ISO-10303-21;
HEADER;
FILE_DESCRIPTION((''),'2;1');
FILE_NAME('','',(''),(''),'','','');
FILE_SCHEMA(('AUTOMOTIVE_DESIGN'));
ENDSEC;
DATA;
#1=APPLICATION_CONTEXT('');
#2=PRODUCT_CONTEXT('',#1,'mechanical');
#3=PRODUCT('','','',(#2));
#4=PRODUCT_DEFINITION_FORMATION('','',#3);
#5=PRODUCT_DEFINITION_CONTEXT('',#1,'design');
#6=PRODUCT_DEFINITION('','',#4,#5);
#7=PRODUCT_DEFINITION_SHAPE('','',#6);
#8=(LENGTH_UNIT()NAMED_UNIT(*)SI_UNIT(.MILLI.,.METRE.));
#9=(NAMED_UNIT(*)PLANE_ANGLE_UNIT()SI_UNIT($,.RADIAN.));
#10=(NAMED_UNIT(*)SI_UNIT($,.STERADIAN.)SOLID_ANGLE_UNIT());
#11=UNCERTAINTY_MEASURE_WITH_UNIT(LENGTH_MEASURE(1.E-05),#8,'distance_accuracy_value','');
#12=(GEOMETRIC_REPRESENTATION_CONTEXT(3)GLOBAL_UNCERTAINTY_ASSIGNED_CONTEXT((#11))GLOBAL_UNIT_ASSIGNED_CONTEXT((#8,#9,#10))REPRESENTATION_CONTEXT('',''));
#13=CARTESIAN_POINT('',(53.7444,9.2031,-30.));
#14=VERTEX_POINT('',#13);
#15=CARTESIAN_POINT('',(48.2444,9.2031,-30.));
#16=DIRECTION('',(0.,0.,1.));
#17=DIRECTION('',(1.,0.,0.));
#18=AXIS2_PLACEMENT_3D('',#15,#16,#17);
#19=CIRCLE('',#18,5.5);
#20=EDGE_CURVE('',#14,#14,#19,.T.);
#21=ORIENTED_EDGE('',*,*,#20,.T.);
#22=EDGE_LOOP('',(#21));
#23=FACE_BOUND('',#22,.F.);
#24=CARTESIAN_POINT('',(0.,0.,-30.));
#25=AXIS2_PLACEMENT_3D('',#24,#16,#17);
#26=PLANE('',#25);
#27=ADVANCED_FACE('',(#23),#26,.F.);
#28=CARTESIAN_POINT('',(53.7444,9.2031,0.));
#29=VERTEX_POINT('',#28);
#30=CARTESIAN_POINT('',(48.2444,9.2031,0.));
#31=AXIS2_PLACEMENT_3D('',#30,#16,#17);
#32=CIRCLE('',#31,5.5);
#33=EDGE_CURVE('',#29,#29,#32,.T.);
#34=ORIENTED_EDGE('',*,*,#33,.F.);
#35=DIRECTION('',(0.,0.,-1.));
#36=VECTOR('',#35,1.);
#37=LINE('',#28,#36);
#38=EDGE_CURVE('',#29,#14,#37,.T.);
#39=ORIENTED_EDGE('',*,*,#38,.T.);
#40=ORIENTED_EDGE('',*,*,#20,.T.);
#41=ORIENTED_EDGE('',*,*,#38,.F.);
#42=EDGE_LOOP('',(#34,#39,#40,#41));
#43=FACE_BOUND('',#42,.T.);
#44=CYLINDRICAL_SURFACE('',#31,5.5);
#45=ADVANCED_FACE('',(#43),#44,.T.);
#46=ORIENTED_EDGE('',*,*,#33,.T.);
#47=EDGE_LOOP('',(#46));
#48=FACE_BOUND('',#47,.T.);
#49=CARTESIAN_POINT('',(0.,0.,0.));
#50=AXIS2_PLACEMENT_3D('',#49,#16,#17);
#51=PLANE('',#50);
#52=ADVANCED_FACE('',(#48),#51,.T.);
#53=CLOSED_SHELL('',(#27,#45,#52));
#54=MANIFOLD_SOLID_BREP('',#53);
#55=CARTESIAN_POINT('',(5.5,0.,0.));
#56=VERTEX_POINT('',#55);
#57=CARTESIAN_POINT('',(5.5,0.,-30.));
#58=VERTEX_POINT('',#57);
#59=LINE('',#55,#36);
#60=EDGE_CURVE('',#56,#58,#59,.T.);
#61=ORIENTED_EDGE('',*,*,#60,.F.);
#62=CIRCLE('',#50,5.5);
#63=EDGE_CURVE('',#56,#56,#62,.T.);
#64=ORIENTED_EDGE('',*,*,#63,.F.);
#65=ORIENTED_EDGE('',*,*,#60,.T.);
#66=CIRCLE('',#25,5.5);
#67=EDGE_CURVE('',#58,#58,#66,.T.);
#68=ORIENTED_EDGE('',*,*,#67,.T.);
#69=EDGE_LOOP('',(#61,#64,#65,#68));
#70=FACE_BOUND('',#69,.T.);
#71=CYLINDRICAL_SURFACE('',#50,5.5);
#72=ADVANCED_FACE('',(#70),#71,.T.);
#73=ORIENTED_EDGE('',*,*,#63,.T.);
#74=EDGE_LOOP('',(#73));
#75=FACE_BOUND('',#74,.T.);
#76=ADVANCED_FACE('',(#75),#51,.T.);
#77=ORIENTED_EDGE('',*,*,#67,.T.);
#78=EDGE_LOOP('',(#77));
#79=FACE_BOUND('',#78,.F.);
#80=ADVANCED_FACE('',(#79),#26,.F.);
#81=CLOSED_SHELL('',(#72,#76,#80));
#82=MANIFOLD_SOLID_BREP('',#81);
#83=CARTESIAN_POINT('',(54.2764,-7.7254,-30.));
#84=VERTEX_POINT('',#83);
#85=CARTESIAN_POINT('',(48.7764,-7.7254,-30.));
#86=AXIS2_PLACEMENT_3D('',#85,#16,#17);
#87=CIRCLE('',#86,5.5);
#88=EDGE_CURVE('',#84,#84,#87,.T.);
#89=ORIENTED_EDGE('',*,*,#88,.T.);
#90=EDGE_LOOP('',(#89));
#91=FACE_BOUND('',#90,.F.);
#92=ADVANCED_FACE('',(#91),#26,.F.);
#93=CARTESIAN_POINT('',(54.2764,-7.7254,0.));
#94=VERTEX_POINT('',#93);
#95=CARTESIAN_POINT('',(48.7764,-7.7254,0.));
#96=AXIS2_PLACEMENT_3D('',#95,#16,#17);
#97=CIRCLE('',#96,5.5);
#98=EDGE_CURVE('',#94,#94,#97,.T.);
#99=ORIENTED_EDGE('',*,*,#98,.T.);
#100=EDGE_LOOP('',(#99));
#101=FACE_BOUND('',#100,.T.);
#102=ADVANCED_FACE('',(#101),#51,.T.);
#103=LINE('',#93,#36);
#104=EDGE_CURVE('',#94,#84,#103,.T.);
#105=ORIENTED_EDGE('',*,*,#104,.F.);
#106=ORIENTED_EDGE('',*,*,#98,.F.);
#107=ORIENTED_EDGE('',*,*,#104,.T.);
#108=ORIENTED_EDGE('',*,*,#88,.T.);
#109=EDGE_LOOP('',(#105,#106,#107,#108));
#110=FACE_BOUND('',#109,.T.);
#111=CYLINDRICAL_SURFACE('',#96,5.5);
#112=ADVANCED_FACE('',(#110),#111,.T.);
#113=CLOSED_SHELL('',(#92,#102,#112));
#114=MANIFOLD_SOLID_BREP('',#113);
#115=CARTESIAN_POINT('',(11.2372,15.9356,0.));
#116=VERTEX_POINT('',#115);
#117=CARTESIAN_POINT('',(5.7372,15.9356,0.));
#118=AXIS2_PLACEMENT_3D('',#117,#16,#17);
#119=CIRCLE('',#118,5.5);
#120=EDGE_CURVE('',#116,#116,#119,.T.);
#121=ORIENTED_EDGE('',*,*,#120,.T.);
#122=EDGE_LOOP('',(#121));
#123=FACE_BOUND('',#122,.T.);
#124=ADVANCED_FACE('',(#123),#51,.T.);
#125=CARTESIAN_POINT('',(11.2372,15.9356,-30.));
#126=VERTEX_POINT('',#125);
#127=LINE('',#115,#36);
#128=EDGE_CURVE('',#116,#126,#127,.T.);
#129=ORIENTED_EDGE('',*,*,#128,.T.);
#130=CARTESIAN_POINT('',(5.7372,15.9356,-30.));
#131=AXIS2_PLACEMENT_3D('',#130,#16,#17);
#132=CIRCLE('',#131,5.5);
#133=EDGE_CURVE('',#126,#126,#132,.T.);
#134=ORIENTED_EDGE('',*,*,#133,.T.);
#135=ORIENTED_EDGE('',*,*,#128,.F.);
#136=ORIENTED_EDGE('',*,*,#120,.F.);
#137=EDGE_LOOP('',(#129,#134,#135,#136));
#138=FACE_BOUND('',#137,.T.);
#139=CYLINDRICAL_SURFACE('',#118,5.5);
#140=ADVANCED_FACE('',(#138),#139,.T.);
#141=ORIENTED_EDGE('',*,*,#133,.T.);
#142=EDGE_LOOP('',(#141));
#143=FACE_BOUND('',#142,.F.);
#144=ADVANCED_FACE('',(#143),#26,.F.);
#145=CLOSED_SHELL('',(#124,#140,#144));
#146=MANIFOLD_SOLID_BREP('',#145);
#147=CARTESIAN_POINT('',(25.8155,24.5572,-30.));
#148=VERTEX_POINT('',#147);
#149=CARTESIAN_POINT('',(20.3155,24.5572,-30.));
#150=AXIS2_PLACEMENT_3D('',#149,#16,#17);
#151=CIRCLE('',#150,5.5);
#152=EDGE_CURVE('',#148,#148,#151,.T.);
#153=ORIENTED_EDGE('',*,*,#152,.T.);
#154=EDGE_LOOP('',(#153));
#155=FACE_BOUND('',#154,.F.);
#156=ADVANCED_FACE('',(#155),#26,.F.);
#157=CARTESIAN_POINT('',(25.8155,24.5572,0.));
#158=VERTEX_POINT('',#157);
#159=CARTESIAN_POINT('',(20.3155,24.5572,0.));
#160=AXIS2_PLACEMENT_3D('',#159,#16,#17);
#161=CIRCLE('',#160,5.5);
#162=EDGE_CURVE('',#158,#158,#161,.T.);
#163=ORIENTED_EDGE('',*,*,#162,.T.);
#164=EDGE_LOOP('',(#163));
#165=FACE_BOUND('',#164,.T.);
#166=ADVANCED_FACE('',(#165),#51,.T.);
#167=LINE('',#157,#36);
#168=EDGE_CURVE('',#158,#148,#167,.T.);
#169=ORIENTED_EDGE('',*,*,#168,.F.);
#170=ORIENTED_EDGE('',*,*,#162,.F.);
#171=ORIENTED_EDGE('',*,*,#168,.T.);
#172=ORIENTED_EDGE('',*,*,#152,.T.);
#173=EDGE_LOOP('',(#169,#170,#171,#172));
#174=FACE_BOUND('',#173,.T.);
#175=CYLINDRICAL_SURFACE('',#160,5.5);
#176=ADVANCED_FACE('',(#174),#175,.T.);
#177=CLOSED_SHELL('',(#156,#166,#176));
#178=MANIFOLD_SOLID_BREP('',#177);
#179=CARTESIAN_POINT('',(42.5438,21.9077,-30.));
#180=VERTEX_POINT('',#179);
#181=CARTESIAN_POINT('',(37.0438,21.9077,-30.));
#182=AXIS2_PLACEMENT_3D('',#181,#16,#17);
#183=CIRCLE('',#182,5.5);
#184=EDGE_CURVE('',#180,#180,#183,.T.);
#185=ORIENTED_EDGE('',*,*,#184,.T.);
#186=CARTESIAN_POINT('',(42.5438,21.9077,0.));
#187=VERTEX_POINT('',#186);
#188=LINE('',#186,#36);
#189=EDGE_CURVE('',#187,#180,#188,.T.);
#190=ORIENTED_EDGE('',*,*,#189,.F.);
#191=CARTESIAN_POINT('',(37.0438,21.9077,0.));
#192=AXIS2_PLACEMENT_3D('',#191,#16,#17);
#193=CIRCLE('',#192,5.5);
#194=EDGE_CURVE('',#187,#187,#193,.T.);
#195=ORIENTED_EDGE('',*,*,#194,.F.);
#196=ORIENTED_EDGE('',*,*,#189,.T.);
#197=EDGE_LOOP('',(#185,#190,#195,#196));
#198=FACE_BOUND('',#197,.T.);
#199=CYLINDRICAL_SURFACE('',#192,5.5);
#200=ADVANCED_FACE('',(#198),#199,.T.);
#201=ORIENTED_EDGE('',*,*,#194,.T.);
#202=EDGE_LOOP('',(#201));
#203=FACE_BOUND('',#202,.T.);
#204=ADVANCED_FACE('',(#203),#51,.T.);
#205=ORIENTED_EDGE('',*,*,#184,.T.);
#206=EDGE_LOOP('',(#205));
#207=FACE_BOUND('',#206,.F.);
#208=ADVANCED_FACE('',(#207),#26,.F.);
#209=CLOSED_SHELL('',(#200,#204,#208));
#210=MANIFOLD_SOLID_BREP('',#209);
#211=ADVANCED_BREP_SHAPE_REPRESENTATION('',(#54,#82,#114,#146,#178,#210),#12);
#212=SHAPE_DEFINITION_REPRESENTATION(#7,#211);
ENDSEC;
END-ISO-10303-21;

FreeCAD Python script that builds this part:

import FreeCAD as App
import Part
import Sketcher

doc = App.newDocument("Part")
body = doc.addObject("PartDesign::Body", "Body")
body.AllowCompound = True

sketch1 = body.newObject("Sketcher::SketchObject", "Sketch")
sketch1.AttachmentSupport = (doc.getObject("XY_Plane"), [""])
sketch1.MapMode = "FlatFace"
sketch1.addGeometry([
    Part.Circle(App.Vector(49, -8, 0), App.Vector(0, 0, 1), 6),
    Part.Circle(App.Vector(48, 9, 0), App.Vector(0, 0, 1), 6),
    Part.Circle(App.Vector(37, 22, 0), App.Vector(0, 0, 1), 6),
    Part.Circle(App.Vector(20, 25, 0), App.Vector(0, 0, 1), 6),
    Part.Circle(App.Vector(6, 16, 0), App.Vector(0, 0, 1), 6),
    Part.Circle(App.Vector(0, 0, 0), App.Vector(0, 0, 1), 6),
], False)
sketch1.addConstraint([
    Sketcher.Constraint("Coincident", 5, 3, -1, 1),
    Sketcher.Constraint("Equal", 0, 1),
    Sketcher.Constraint("Equal", 1, 2),
    Sketcher.Constraint("Equal", 2, 3),
    Sketcher.Constraint("Equal", 3, 4),
    Sketcher.Constraint("Equal", 4, 5),
    Sketcher.Constraint("Diameter", 0, 11.0),
    Sketcher.Constraint("DistanceY", -1, 1, 1, 3, 9.203),
    Sketcher.Constraint("DistanceX", 1, 3, 0, 3, 0.532),
    Sketcher.Constraint("DistanceY", 0, 3, 2, 3, 29.633),
    Sketcher.Constraint("DistanceX", 3, 3, 1, 3, 27.929),
    Sketcher.Constraint("DistanceY", 1, 3, 3, 3, 15.354),
    Sketcher.Constraint("DistanceY", 4, 3, 2, 3, 5.972),
    Sketcher.Constraint("DistanceX", -1, 1, 0, 3, 48.7764),
    Sketcher.Constraint("DistanceY", 0, 3, -1, 1, 7.7254),
    Sketcher.Constraint("DistanceX", -1, 1, 2, 3, 37.0438),
    Sketcher.Constraint("DistanceX", -1, 1, 4, 3, 5.7372),
])
pad1 = body.newObject("PartDesign::Pad", "Pad")
pad1.Profile = sketch1
pad1.Length = 30
pad1.Reversed = True

doc.recompute()
